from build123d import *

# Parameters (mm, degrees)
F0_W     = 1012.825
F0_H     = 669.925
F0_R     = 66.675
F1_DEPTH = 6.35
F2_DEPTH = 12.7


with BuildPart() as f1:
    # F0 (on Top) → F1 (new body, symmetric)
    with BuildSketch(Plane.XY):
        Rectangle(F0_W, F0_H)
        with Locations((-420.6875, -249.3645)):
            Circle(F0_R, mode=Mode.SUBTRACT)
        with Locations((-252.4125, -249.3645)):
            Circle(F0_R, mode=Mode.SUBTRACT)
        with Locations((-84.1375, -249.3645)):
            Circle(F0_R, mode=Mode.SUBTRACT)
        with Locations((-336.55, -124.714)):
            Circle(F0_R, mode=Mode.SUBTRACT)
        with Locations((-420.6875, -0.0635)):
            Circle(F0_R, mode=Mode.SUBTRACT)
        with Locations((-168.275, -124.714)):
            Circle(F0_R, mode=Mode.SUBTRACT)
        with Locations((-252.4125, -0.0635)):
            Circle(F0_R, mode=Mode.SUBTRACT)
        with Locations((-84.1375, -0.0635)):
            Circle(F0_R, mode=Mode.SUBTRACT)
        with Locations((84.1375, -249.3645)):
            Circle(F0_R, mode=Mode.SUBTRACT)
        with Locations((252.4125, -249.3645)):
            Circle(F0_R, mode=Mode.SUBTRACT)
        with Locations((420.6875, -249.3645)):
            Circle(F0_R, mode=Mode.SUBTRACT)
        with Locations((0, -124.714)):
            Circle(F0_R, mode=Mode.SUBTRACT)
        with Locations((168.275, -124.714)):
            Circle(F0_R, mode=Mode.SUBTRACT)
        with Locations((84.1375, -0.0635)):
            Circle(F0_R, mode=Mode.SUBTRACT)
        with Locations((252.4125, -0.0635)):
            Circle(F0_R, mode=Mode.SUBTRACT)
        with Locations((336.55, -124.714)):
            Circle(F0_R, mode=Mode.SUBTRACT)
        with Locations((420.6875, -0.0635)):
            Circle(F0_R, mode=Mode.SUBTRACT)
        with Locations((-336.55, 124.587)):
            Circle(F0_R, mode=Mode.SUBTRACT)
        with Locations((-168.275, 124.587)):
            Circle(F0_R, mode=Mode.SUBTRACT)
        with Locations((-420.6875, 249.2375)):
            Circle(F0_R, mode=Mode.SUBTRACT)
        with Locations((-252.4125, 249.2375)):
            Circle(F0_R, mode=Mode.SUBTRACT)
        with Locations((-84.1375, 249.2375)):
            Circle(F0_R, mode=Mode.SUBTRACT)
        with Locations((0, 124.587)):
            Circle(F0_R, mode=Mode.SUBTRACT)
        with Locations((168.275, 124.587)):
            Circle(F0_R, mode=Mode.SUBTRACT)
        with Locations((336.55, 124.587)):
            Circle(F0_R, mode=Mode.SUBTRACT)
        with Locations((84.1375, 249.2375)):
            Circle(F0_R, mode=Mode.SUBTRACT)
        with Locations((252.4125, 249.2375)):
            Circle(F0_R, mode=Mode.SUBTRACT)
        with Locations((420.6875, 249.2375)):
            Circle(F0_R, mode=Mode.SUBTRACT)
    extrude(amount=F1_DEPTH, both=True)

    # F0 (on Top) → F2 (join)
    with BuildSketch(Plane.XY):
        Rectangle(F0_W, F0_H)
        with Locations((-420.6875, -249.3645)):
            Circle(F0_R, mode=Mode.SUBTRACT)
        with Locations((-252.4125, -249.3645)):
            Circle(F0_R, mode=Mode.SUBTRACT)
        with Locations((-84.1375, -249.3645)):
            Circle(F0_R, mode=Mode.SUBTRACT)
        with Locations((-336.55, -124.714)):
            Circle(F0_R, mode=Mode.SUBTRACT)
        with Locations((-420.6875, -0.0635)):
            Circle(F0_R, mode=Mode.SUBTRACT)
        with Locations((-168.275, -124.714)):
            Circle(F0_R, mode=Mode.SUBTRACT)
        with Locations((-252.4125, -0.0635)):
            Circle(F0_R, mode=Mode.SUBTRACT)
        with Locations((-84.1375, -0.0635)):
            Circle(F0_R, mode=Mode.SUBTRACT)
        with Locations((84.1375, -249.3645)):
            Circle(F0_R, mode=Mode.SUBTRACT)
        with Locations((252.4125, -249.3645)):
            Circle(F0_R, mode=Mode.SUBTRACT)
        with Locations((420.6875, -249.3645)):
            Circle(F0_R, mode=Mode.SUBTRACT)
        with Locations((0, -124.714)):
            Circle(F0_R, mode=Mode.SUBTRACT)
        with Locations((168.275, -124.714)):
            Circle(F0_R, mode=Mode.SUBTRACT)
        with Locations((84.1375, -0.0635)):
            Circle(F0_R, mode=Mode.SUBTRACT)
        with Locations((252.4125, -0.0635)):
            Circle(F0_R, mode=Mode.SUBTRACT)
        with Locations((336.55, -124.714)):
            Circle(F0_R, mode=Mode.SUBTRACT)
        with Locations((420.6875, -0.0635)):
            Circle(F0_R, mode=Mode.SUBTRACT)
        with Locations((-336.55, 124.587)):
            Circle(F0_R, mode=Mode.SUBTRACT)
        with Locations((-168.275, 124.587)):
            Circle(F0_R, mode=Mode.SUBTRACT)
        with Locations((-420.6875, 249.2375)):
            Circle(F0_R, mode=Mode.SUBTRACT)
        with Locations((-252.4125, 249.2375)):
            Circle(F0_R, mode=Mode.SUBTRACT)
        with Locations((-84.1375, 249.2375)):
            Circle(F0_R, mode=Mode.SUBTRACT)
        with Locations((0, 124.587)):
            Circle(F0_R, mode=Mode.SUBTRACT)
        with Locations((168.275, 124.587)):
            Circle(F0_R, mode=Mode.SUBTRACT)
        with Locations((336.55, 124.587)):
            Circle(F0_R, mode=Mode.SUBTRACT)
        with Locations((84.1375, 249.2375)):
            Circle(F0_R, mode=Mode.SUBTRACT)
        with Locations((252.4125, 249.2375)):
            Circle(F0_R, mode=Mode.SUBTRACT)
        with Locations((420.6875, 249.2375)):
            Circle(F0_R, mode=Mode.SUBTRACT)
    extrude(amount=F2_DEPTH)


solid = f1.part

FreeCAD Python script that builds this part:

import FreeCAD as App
import Part
import Sketcher
Q = App.Units.Quantity

doc = App.newDocument("Part")
params = doc.addObject("Spreadsheet::Sheet", "Params")
for row, (alias, value) in enumerate([
    ("sketch1_diameter", "5.25 in"),
    ("sketch1_width", "39.875 in"),
    ("sketch1_height", "26.375 in"),
    ("pad1_length", "0.5 in"),
    ("sketch2_diameter", "5.25 in"),
    ("sketch2_width", "39.875 in"),
    ("sketch2_height", "26.375 in"),
    ("pad2_length", "0.5 in"),
], start=1):
    params.set(f"A{row}", alias)
    params.set(f"B{row}", "=" + value)
    params.setAlias(f"B{row}", alias)

body = doc.addObject("PartDesign::Body", "Body")

sketch1 = body.newObject("Sketcher::SketchObject", "Sketch")
sketch1.AttachmentSupport = (doc.getObject("XY_Plane"), [""])
sketch1.MapMode = "FlatFace"
sketch1.addGeometry(Part.LineSegment(App.Vector(-506, 335, 0), App.Vector(-506, -335, 0)), False)
sketch1.addGeometry(Part.LineSegment(App.Vector(-506, -335, 0), App.Vector(506, -335, 0)), False)
sketch1.addGeometry(Part.LineSegment(App.Vector(506, -335, 0), App.Vector(506, 335, 0)), False)
sketch1.addGeometry(Part.LineSegment(App.Vector(506, 335, 0), App.Vector(-506, 335, 0)), False)
sketch1.addGeometry(Part.Circle(App.Vector(-421, -249, 0), App.Vector(0, 0, 1), 67), False)
sketch1.addGeometry(Part.Circle(App.Vector(-252, -249, 0), App.Vector(0, 0, 1), 67), False)
sketch1.addGeometry(Part.Circle(App.Vector(-84, -249, 0), App.Vector(0, 0, 1), 67), False)
sketch1.addGeometry(Part.Circle(App.Vector(-337, -125, 0), App.Vector(0, 0, 1), 67), False)
sketch1.addGeometry(Part.Circle(App.Vector(-168, -125, 0), App.Vector(0, 0, 1), 67), False)
sketch1.addGeometry(Part.Circle(App.Vector(84, -249, 0), App.Vector(0, 0, 1), 67), False)
sketch1.addGeometry(Part.Circle(App.Vector(252, -249, 0), App.Vector(0, 0, 1), 67), False)
sketch1.addGeometry(Part.Circle(App.Vector(421, -249, 0), App.Vector(0, 0, 1), 67), False)
sketch1.addGeometry(Part.Circle(App.Vector(0, -125, 0), App.Vector(0, 0, 1), 67), False)
sketch1.addGeometry(Part.Circle(App.Vector(168, -125, 0), App.Vector(0, 0, 1), 67), False)
sketch1.addGeometry(Part.Circle(App.Vector(337, -125, 0), App.Vector(0, 0, 1), 67), False)
sketch1.addGeometry(Part.Circle(App.Vector(-421, 0, 0), App.Vector(0, 0, 1), 67), False)
sketch1.addGeometry(Part.Circle(App.Vector(-252, 0, 0), App.Vector(0, 0, 1), 67), False)
sketch1.addGeometry(Part.Circle(App.Vector(-337, 125, 0), App.Vector(0, 0, 1), 67), False)
sketch1.addGeometry(Part.Circle(App.Vector(-84, 0, 0), App.Vector(0, 0, 1), 67), False)
sketch1.addGeometry(Part.Circle(App.Vector(-168, 125, 0), App.Vector(0, 0, 1), 67), False)
sketch1.addGeometry(Part.Circle(App.Vector(-421, 249, 0), App.Vector(0, 0, 1), 67), False)
sketch1.addGeometry(Part.Circle(App.Vector(-252, 249, 0), App.Vector(0, 0, 1), 67), False)
sketch1.addGeometry(Part.Circle(App.Vector(-84, 249, 0), App.Vector(0, 0, 1), 67), False)
sketch1.addGeometry(Part.Circle(App.Vector(84, 0, 0), App.Vector(0, 0, 1), 67), False)
sketch1.addGeometry(Part.Circle(App.Vector(0, 125, 0), App.Vector(0, 0, 1), 67), False)
sketch1.addGeometry(Part.Circle(App.Vector(168, 125, 0), App.Vector(0, 0, 1), 67), False)
sketch1.addGeometry(Part.Circle(App.Vector(252, 0, 0), App.Vector(0, 0, 1), 67), False)
sketch1.addGeometry(Part.Circle(App.Vector(421, 0, 0), App.Vector(0, 0, 1), 67), False)
sketch1.addGeometry(Part.Circle(App.Vector(337, 125, 0), App.Vector(0, 0, 1), 67), False)
sketch1.addGeometry(Part.Circle(App.Vector(84, 249, 0), App.Vector(0, 0, 1), 67), False)
sketch1.addGeometry(Part.Circle(App.Vector(252, 249, 0), App.Vector(0, 0, 1), 67), False)
sketch1.addGeometry(Part.Circle(App.Vector(421, 249, 0), App.Vector(0, 0, 1), 67), False)
sketch1.addConstraint(Sketcher.Constraint("Coincident", 0, 2, 1, 1))
sketch1.addConstraint(Sketcher.Constraint("Coincident", 1, 2, 2, 1))
sketch1.addConstraint(Sketcher.Constraint("Coincident", 2, 2, 3, 1))
sketch1.addConstraint(Sketcher.Constraint("Coincident", 3, 2, 0, 1))
sketch1.addConstraint(Sketcher.Constraint("Vertical", 0))
sketch1.addConstraint(Sketcher.Constraint("Horizontal", 1))
sketch1.addConstraint(Sketcher.Constraint("Vertical", 2))
sketch1.addConstraint(Sketcher.Constraint("Horizontal", 3))
sketch1.addConstraint(Sketcher.Constraint("Equal", 4, 5))
sketch1.addConstraint(Sketcher.Constraint("Equal", 5, 6))
sketch1.addConstraint(Sketcher.Constraint("Equal", 6, 7))
sketch1.addConstraint(Sketcher.Constraint("Equal", 7, 8))
sketch1.addConstraint(Sketcher.Constraint("Equal", 8, 9))
sketch1.addConstraint(Sketcher.Constraint("Equal", 9, 10))
sketch1.addConstraint(Sketcher.Constraint("Equal", 10, 11))
sketch1.addConstraint(Sketcher.Constraint("Equal", 11, 12))
sketch1.addConstraint(Sketcher.Constraint("Equal", 12, 13))
sketch1.addConstraint(Sketcher.Constraint("Equal", 13, 14))
sketch1.addConstraint(Sketcher.Constraint("Equal", 14, 15))
sketch1.addConstraint(Sketcher.Constraint("Equal", 15, 16))
sketch1.addConstraint(Sketcher.Constraint("Equal", 16, 17))
sketch1.addConstraint(Sketcher.Constraint("Equal", 17, 18))
sketch1.addConstraint(Sketcher.Constraint("Equal", 18, 19))
sketch1.addConstraint(Sketcher.Constraint("Equal", 19, 20))
sketch1.addConstraint(Sketcher.Constraint("Equal", 20, 21))
sketch1.addConstraint(Sketcher.Constraint("Equal", 21, 22))
sketch1.addConstraint(Sketcher.Constraint("Equal", 22, 23))
sketch1.addConstraint(Sketcher.Constraint("Equal", 23, 24))
sketch1.addConstraint(Sketcher.Constraint("Equal", 24, 25))
sketch1.addConstraint(Sketcher.Constraint("Equal", 25, 26))
sketch1.addConstraint(Sketcher.Constraint("Equal", 26, 27))
sketch1.addConstraint(Sketcher.Constraint("Equal", 27, 28))
sketch1.addConstraint(Sketcher.Constraint("Equal", 28, 29))
sketch1.addConstraint(Sketcher.Constraint("Equal", 29, 30))
sketch1.addConstraint(Sketcher.Constraint("Equal", 30, 31))
sketch1.addConstraint(Sketcher.Constraint("Symmetric", 0, 2, 2, 2, -1, 1))
sketch1.addConstraint(Sketcher.Constraint("Symmetric", 6, 3, 9, 3, -2))
sketch1.addConstraint(Sketcher.Constraint("Symmetric", 5, 3, 10, 3, -2))
sketch1.addConstraint(Sketcher.Constraint("Symmetric", 4, 3, 11, 3, -2))
sketch1.addConstraint(Sketcher.Constraint("Symmetric", 8, 3, 13, 3, -2))
sketch1.addConstraint(Sketcher.Constraint("Symmetric", 7, 3, 14, 3, -2))
sketch1.addConstraint(Sketcher.Constraint("Symmetric", 18, 3, 23, 3, -2))
sketch1.addConstraint(Sketcher.Constraint("Symmetric", 19, 3, 25, 3, -2))
sketch1.addConstraint(Sketcher.Constraint("Symmetric", 16, 3, 26, 3, -2))
sketch1.addConstraint(Sketcher.Constraint("Symmetric", 15, 3, 27, 3, -2))
sketch1.addConstraint(Sketcher.Constraint("Symmetric", 17, 3, 28, 3, -2))
sketch1.addConstraint(Sketcher.Constraint("Symmetric", 22, 3, 29, 3, -2))
sketch1.addConstraint(Sketcher.Constraint("Symmetric", 21, 3, 30, 3, -2))
sketch1.addConstraint(Sketcher.Constraint("Symmetric", 20, 3, 31, 3, -2))
sketch1.addConstraint(Sketcher.Constraint("PointOnObject", 12, 3, -2))
sketch1.addConstraint(Sketcher.Constraint("PointOnObject", 24, 3, -2))
sketch1.addConstraint(Sketcher.Constraint("Horizontal", 4, 3, 5, 3))
sketch1.addConstraint(Sketcher.Constraint("Horizontal", 5, 3, 6, 3))
sketch1.addConstraint(Sketcher.Constraint("Horizontal", 7, 3, 8, 3))
sketch1.addConstraint(Sketcher.Constraint("Horizontal", 8, 3, 12, 3))
sketch1.addConstraint(Sketcher.Constraint("Horizontal", 15, 3, 16, 3))
sketch1.addConstraint(Sketcher.Constraint("Horizontal", 16, 3, 18, 3))
sketch1.addConstraint(Sketcher.Constraint("Horizontal", 17, 3, 19, 3))
sketch1.addConstraint(Sketcher.Constraint("Horizontal", 20, 3, 21, 3))
sketch1.addConstraint(Sketcher.Constraint("Horizontal", 21, 3, 22, 3))
sketch1.addConstraint(Sketcher.Constraint("Horizontal", 19, 3, 24, 3))
sketch1.addConstraint(Sketcher.Constraint("Vertical", 4, 3, 15, 3))
sketch1.addConstraint(Sketcher.Constraint("Vertical", 5, 3, 16, 3))
sketch1.addConstraint(Sketcher.Constraint("Vertical", 7, 3, 17, 3))
sketch1.addConstraint(Sketcher.Constraint("Vertical", 6, 3, 18, 3))
sketch1.addConstraint(Sketcher.Constraint("Vertical", 8, 3, 19, 3))
sketch1.addConstraint(Sketcher.Constraint("Vertical", 15, 3, 20, 3))
sketch1.addConstraint(Sketcher.Constraint("Vertical", 16, 3, 21, 3))
sketch1.addConstraint(Sketcher.Constraint("Vertical", 18, 3, 22, 3))
sketch1.addConstraint(Sketcher.Constraint("Diameter", 4, Q("5.25 in")))
sketch1.addConstraint(Sketcher.Constraint("DistanceX", 0, 2, 5, 3, Q("10 in")))
sketch1.addConstraint(Sketcher.Constraint("DistanceX", 5, 3, 11, 3, Q("26.5 in")))
sketch1.addConstraint(Sketcher.Constraint("DistanceX", 1, 1, 1, 2, Q("39.875 in")))
sketch1.addConstraint(Sketcher.Constraint("DistanceY", 0, 2, 0, 1, Q("26.375 in")))
sketch1.addConstraint(Sketcher.Constraint("DistanceX", 7, 3, -1, 1, Q("13.25 in")))
sketch1.addConstraint(Sketcher.Constraint("DistanceY", 7, 3, -1, 1, Q("4.91 in")))
sketch1.addConstraint(Sketcher.Constraint("DistanceX", 4, 3, 6, 3, Q("13.25 in")))
sketch1.addConstraint(Sketcher.Constraint("DistanceY", 0, 2, 4, 3, Q("3.37 in")))
sketch1.addConstraint(Sketcher.Constraint("DistanceY", 27, 3, 2, 2, Q("13.19 in")))
sketch1.addConstraint(Sketcher.Constraint("DistanceX", 8, 3, -1, 1, Q("6.625 in")))
sketch1.addConstraint(Sketcher.Constraint("DistanceY", -1, 1, 17, 3, Q("4.905 in")))
sketch1.addConstraint(Sketcher.Constraint("DistanceY", -1, 1, 20, 3, Q("9.8125 in")))
sketch1.setExpression("Constraints[69]", "Params.sketch1_diameter")
sketch1.setExpression("Constraints[72]", "Params.sketch1_width")
sketch1.setExpression("Constraints[73]", "Params.sketch1_height")
pad1 = body.newObject("PartDesign::Pad", "Pad")
pad1.Profile = sketch1
pad1.setExpression("Length", "Params.pad1_length")
pad1.Midplane = True

sketch2 = body.newObject("Sketcher::SketchObject", "Sketch001")
sketch2.AttachmentSupport = (doc.getObject("XY_Plane"), [""])
sketch2.MapMode = "FlatFace"
sketch2.addGeometry(Part.LineSegment(App.Vector(-506, 335, 0), App.Vector(-506, -335, 0)), False)
sketch2.addGeometry(Part.LineSegment(App.Vector(-506, -335, 0), App.Vector(506, -335, 0)), False)
sketch2.addGeometry(Part.LineSegment(App.Vector(506, -335, 0), App.Vector(506, 335, 0)), False)
sketch2.addGeometry(Part.LineSegment(App.Vector(506, 335, 0), App.Vector(-506, 335, 0)), False)
sketch2.addGeometry(Part.Circle(App.Vector(-421, -249, 0), App.Vector(0, 0, 1), 67), False)
sketch2.addGeometry(Part.Circle(App.Vector(-252, -249, 0), App.Vector(0, 0, 1), 67), False)
sketch2.addGeometry(Part.Circle(App.Vector(-84, -249, 0), App.Vector(0, 0, 1), 67), False)
sketch2.addGeometry(Part.Circle(App.Vector(-337, -125, 0), App.Vector(0, 0, 1), 67), False)
sketch2.addGeometry(Part.Circle(App.Vector(-168, -125, 0), App.Vector(0, 0, 1), 67), False)
sketch2.addGeometry(Part.Circle(App.Vector(84, -249, 0), App.Vector(0, 0, 1), 67), False)
sketch2.addGeometry(Part.Circle(App.Vector(252, -249, 0), App.Vector(0, 0, 1), 67), False)
sketch2.addGeometry(Part.Circle(App.Vector(421, -249, 0), App.Vector(0, 0, 1), 67), False)
sketch2.addGeometry(Part.Circle(App.Vector(0, -125, 0), App.Vector(0, 0, 1), 67), False)
sketch2.addGeometry(Part.Circle(App.Vector(168, -125, 0), App.Vector(0, 0, 1), 67), False)
sketch2.addGeometry(Part.Circle(App.Vector(337, -125, 0), App.Vector(0, 0, 1), 67), False)
sketch2.addGeometry(Part.Circle(App.Vector(-421, 0, 0), App.Vector(0, 0, 1), 67), False)
sketch2.addGeometry(Part.Circle(App.Vector(-252, 0, 0), App.Vector(0, 0, 1), 67), False)
sketch2.addGeometry(Part.Circle(App.Vector(-337, 125, 0), App.Vector(0, 0, 1), 67), False)
sketch2.addGeometry(Part.Circle(App.Vector(-84, 0, 0), App.Vector(0, 0, 1), 67), False)
sketch2.addGeometry(Part.Circle(App.Vector(-168, 125, 0), App.Vector(0, 0, 1), 67), False)
sketch2.addGeometry(Part.Circle(App.Vector(-421, 249, 0), App.Vector(0, 0, 1), 67), False)
sketch2.addGeometry(Part.Circle(App.Vector(-252, 249, 0), App.Vector(0, 0, 1), 67), False)
sketch2.addGeometry(Part.Circle(App.Vector(-84, 249, 0), App.Vector(0, 0, 1), 67), False)
sketch2.addGeometry(Part.Circle(App.Vector(84, 0, 0), App.Vector(0, 0, 1), 67), False)
sketch2.addGeometry(Part.Circle(App.Vector(0, 125, 0), App.Vector(0, 0, 1), 67), False)
sketch2.addGeometry(Part.Circle(App.Vector(168, 125, 0), App.Vector(0, 0, 1), 67), False)
sketch2.addGeometry(Part.Circle(App.Vector(252, 0, 0), App.Vector(0, 0, 1), 67), False)
sketch2.addGeometry(Part.Circle(App.Vector(421, 0, 0), App.Vector(0, 0, 1), 67), False)
sketch2.addGeometry(Part.Circle(App.Vector(337, 125, 0), App.Vector(0, 0, 1), 67), False)
sketch2.addGeometry(Part.Circle(App.Vector(84, 249, 0), App.Vector(0, 0, 1), 67), False)
sketch2.addGeometry(Part.Circle(App.Vector(252, 249, 0), App.Vector(0, 0, 1), 67), False)
sketch2.addGeometry(Part.Circle(App.Vector(421, 249, 0), App.Vector(0, 0, 1), 67), False)
sketch2.addConstraint(Sketcher.Constraint("Coincident", 0, 2, 1, 1))
sketch2.addConstraint(Sketcher.Constraint("Coincident", 1, 2, 2, 1))
sketch2.addConstraint(Sketcher.Constraint("Coincident", 2, 2, 3, 1))
sketch2.addConstraint(Sketcher.Constraint("Coincident", 3, 2, 0, 1))
sketch2.addConstraint(Sketcher.Constraint("Vertical", 0))
sketch2.addConstraint(Sketcher.Constraint("Horizontal", 1))
sketch2.addConstraint(Sketcher.Constraint("Vertical", 2))
sketch2.addConstraint(Sketcher.Constraint("Horizontal", 3))
sketch2.addConstraint(Sketcher.Constraint("Equal", 4, 5))
sketch2.addConstraint(Sketcher.Constraint("Equal", 5, 6))
sketch2.addConstraint(Sketcher.Constraint("Equal", 6, 7))
sketch2.addConstraint(Sketcher.Constraint("Equal", 7, 8))
sketch2.addConstraint(Sketcher.Constraint("Equal", 8, 9))
sketch2.addConstraint(Sketcher.Constraint("Equal", 9, 10))
sketch2.addConstraint(Sketcher.Constraint("Equal", 10, 11))
sketch2.addConstraint(Sketcher.Constraint("Equal", 11, 12))
sketch2.addConstraint(Sketcher.Constraint("Equal", 12, 13))
sketch2.addConstraint(Sketcher.Constraint("Equal", 13, 14))
sketch2.addConstraint(Sketcher.Constraint("Equal", 14, 15))
sketch2.addConstraint(Sketcher.Constraint("Equal", 15, 16))
sketch2.addConstraint(Sketcher.Constraint("Equal", 16, 17))
sketch2.addConstraint(Sketcher.Constraint("Equal", 17, 18))
sketch2.addConstraint(Sketcher.Constraint("Equal", 18, 19))
sketch2.addConstraint(Sketcher.Constraint("Equal", 19, 20))
sketch2.addConstraint(Sketcher.Constraint("Equal", 20, 21))
sketch2.addConstraint(Sketcher.Constraint("Equal", 21, 22))
sketch2.addConstraint(Sketcher.Constraint("Equal", 22, 23))
sketch2.addConstraint(Sketcher.Constraint("Equal", 23, 24))
sketch2.addConstraint(Sketcher.Constraint("Equal", 24, 25))
sketch2.addConstraint(Sketcher.Constraint("Equal", 25, 26))
sketch2.addConstraint(Sketcher.Constraint("Equal", 26, 27))
sketch2.addConstraint(Sketcher.Constraint("Equal", 27, 28))
sketch2.addConstraint(Sketcher.Constraint("Equal", 28, 29))
sketch2.addConstraint(Sketcher.Constraint("Equal", 29, 30))
sketch2.addConstraint(Sketcher.Constraint("Equal", 30, 31))
sketch2.addConstraint(Sketcher.Constraint("Symmetric", 0, 2, 2, 2, -1, 1))
sketch2.addConstraint(Sketcher.Constraint("Symmetric", 6, 3, 9, 3, -2))
sketch2.addConstraint(Sketcher.Constraint("Symmetric", 5, 3, 10, 3, -2))
sketch2.addConstraint(Sketcher.Constraint("Symmetric", 4, 3, 11, 3, -2))
sketch2.addConstraint(Sketcher.Constraint("Symmetric", 8, 3, 13, 3, -2))
sketch2.addConstraint(Sketcher.Constraint("Symmetric", 7, 3, 14, 3, -2))
sketch2.addConstraint(Sketcher.Constraint("Symmetric", 18, 3, 23, 3, -2))
sketch2.addConstraint(Sketcher.Constraint("Symmetric", 19, 3, 25, 3, -2))
sketch2.addConstraint(Sketcher.Constraint("Symmetric", 16, 3, 26, 3, -2))
sketch2.addConstraint(Sketcher.Constraint("Symmetric", 15, 3, 27, 3, -2))
sketch2.addConstraint(Sketcher.Constraint("Symmetric", 17, 3, 28, 3, -2))
sketch2.addConstraint(Sketcher.Constraint("Symmetric", 22, 3, 29, 3, -2))
sketch2.addConstraint(Sketcher.Constraint("Symmetric", 21, 3, 30, 3, -2))
sketch2.addConstraint(Sketcher.Constraint("Symmetric", 20, 3, 31, 3, -2))
sketch2.addConstraint(Sketcher.Constraint("PointOnObject", 12, 3, -2))
sketch2.addConstraint(Sketcher.Constraint("PointOnObject", 24, 3, -2))
sketch2.addConstraint(Sketcher.Constraint("Horizontal", 4, 3, 5, 3))
sketch2.addConstraint(Sketcher.Constraint("Horizontal", 5, 3, 6, 3))
sketch2.addConstraint(Sketcher.Constraint("Horizontal", 7, 3, 8, 3))
sketch2.addConstraint(Sketcher.Constraint("Horizontal", 8, 3, 12, 3))
sketch2.addConstraint(Sketcher.Constraint("Horizontal", 15, 3, 16, 3))
sketch2.addConstraint(Sketcher.Constraint("Horizontal", 16, 3, 18, 3))
sketch2.addConstraint(Sketcher.Constraint("Horizontal", 17, 3, 19, 3))
sketch2.addConstraint(Sketcher.Constraint("Horizontal", 20, 3, 21, 3))
sketch2.addConstraint(Sketcher.Constraint("Horizontal", 21, 3, 22, 3))
sketch2.addConstraint(Sketcher.Constraint("Horizontal", 19, 3, 24, 3))
sketch2.addConstraint(Sketcher.Constraint("Vertical", 4, 3, 15, 3))
sketch2.addConstraint(Sketcher.Constraint("Vertical", 5, 3, 16, 3))
sketch2.addConstraint(Sketcher.Constraint("Vertical", 7, 3, 17, 3))
sketch2.addConstraint(Sketcher.Constraint("Vertical", 6, 3, 18, 3))
sketch2.addConstraint(Sketcher.Constraint("Vertical", 8, 3, 19, 3))
sketch2.addConstraint(Sketcher.Constraint("Vertical", 15, 3, 20, 3))
sketch2.addConstraint(Sketcher.Constraint("Vertical", 16, 3, 21, 3))
sketch2.addConstraint(Sketcher.Constraint("Vertical", 18, 3, 22, 3))
sketch2.addConstraint(Sketcher.Constraint("Diameter", 4, Q("5.25 in")))
sketch2.addConstraint(Sketcher.Constraint("DistanceX", 0, 2, 5, 3, Q("10 in")))
sketch2.addConstraint(Sketcher.Constraint("DistanceX", 5, 3, 11, 3, Q("26.5 in")))
sketch2.addConstraint(Sketcher.Constraint("DistanceX", 1, 1, 1, 2, Q("39.875 in")))
sketch2.addConstraint(Sketcher.Constraint("DistanceY", 0, 2, 0, 1, Q("26.375 in")))
sketch2.addConstraint(Sketcher.Constraint("DistanceX", 7, 3, -1, 1, Q("13.25 in")))
sketch2.addConstraint(Sketcher.Constraint("DistanceY", 7, 3, -1, 1, Q("4.91 in")))
sketch2.addConstraint(Sketcher.Constraint("DistanceX", 4, 3, 6, 3, Q("13.25 in")))
sketch2.addConstraint(Sketcher.Constraint("DistanceY", 0, 2, 4, 3, Q("3.37 in")))
sketch2.addConstraint(Sketcher.Constraint("DistanceY", 27, 3, 2, 2, Q("13.19 in")))
sketch2.addConstraint(Sketcher.Constraint("DistanceX", 8, 3, -1, 1, Q("6.625 in")))
sketch2.addConstraint(Sketcher.Constraint("DistanceY", -1, 1, 17, 3, Q("4.905 in")))
sketch2.addConstraint(Sketcher.Constraint("DistanceY", -1, 1, 20, 3, Q("9.8125 in")))
sketch2.setExpression("Constraints[69]", "Params.sketch2_diameter")
sketch2.setExpression("Constraints[72]", "Params.sketch2_width")
sketch2.setExpression("Constraints[73]", "Params.sketch2_height")
pad2 = body.newObject("PartDesign::Pad", "Pad001")
pad2.Profile = sketch2
pad2.setExpression("Length", "Params.pad2_length")

doc.recompute()
